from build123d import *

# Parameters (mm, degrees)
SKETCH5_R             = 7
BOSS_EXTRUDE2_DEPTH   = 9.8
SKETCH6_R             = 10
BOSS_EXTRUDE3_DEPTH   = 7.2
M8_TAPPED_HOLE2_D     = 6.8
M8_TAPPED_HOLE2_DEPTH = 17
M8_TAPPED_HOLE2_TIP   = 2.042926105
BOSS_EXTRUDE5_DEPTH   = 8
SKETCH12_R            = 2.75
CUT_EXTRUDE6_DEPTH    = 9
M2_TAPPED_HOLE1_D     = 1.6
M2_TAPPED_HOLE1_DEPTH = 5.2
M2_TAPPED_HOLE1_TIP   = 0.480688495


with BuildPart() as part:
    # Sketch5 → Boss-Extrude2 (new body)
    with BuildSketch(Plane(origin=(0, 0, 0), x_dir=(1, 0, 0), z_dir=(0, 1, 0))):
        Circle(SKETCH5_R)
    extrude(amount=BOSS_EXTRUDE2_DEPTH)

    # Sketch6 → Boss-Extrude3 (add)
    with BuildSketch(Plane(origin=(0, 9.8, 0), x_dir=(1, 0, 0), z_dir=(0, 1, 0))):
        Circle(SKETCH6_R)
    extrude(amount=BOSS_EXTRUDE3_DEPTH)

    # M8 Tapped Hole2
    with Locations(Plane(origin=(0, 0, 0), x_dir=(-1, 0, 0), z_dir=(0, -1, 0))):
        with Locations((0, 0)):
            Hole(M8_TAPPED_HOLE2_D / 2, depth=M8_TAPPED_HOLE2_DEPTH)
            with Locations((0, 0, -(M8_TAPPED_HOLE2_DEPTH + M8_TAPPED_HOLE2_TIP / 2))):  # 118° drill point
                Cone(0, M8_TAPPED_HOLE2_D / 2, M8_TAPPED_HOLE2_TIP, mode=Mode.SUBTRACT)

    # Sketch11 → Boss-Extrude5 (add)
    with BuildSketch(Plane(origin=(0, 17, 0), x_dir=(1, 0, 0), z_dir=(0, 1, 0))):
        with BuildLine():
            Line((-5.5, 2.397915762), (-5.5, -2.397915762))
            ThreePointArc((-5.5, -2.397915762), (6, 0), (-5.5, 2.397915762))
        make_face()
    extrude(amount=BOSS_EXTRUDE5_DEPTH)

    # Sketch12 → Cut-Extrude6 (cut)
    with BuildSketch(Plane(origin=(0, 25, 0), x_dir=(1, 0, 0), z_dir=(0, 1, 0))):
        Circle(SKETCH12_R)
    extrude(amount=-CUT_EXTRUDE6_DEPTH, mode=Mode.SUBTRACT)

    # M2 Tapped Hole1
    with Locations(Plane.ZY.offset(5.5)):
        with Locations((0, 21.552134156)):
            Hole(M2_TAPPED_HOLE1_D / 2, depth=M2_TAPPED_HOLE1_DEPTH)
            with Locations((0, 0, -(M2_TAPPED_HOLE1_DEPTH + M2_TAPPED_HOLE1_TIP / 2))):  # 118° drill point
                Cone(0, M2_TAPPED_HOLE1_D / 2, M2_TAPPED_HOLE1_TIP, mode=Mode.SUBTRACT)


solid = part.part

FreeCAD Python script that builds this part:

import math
import FreeCAD as App
import Part
import Sketcher

V = App.Vector
Q = App.Units.Quantity

doc = App.newDocument("Part")
body = doc.addObject("PartDesign::Body", "Body")

sketch1 = doc.addObject("Sketcher::SketchObject", "Sketch")
body.addObject(sketch1)
sketch1.AttachmentSupport = (doc.XZ_Plane, [""])
sketch1.MapMode = "FlatFace"
sketch1.addGeometry(Part.Circle(V(0, 0, 0), V(0, 0, 1), 7), False)
sketch1.addConstraint(Sketcher.Constraint("Coincident", 0, 3, -1, 1))
sketch1.addConstraint(Sketcher.Constraint("Diameter", 0, Q("14 mm")))
pad1 = doc.addObject("PartDesign::Pad", "Pad")
body.addObject(pad1)
pad1.Profile = sketch1
pad1.Length = 9.8
pad1.Reversed = True

sketch2 = doc.addObject("Sketcher::SketchObject", "Sketch001")
body.addObject(sketch2)
sketch2.AttachmentSupport = (doc.XZ_Plane, [""])
sketch2.MapMode = "FlatFace"
sketch2.AttachmentOffset = App.Placement(V(0, 0, -9.8), App.Rotation())
sketch2.addGeometry(Part.Circle(V(0, 0, 0), V(0, 0, 1), 10), False)
sketch2.addConstraint(Sketcher.Constraint("Coincident", 0, 3, -1, 1))
sketch2.addConstraint(Sketcher.Constraint("Diameter", 0, Q("20 mm")))
pad2 = doc.addObject("PartDesign::Pad", "Pad001")
body.addObject(pad2)
pad2.Profile = sketch2
pad2.Length = 7.2
pad2.Reversed = True

sketch3 = doc.addObject("Sketcher::SketchObject", "Sketch002")
body.addObject(sketch3)
sketch3.AttachmentSupport = (doc.XZ_Plane, [""])
sketch3.MapMode = "FlatFace"
sketch3.addGeometry(Part.Circle(V(0, 0, 0), V(0, 0, 1), 3.4), False)
sketch3.addConstraint(Sketcher.Constraint("Coincident", 0, 3, -1, 1))
sketch3.addConstraint(Sketcher.Constraint("Diameter", 0, Q("6.8 mm")))
doc.recompute()
hole = doc.addObject("PartDesign::Hole", "Hole")
body.addObject(hole)
hole.Profile = sketch3
hole.ThreadType = "None"
hole.Diameter = 6.8
hole.DepthType = "Dimension"
hole.Depth = 17
hole.DrillPoint = "Angled"
hole.DrillPointAngle = 118

sketch4 = doc.addObject("Sketcher::SketchObject", "Sketch003")
body.addObject(sketch4)
sketch4.AttachmentSupport = (doc.XZ_Plane, [""])
sketch4.MapMode = "FlatFace"
sketch4.AttachmentOffset = App.Placement(V(0, 0, -17), App.Rotation())
sketch4.addGeometry(Part.LineSegment(V(-5.5, -2.4, 0), V(-5.5, 2.4, 0)), False)
sketch4.addGeometry(Part.ArcOfCircle(Part.Circle(V(0, 0, 0), V(0, 0, 1), 6), math.radians(-156), math.radians(156)), False)
sketch4.addConstraint(Sketcher.Constraint("Coincident", 0, 1, 1, 1))
sketch4.addConstraint(Sketcher.Constraint("Coincident", 1, 2, 0, 2))
sketch4.addConstraint(Sketcher.Constraint("Vertical", 0))
sketch4.addConstraint(Sketcher.Constraint("Coincident", 1, 3, -1, 1))
sketch4.addConstraint(Sketcher.Constraint("Radius", 1, Q("6 mm")))
sketch4.addConstraint(Sketcher.Constraint("DistanceX", 0, 1, -1, 1, Q("5.5 mm")))
pad3 = doc.addObject("PartDesign::Pad", "Pad002")
body.addObject(pad3)
pad3.Profile = sketch4
pad3.Length = 8
pad3.Reversed = True

sketch5 = doc.addObject("Sketcher::SketchObject", "Sketch004")
body.addObject(sketch5)
sketch5.AttachmentSupport = (doc.XZ_Plane, [""])
sketch5.MapMode = "FlatFace"
sketch5.AttachmentOffset = App.Placement(V(0, 0, -25), App.Rotation())
sketch5.addGeometry(Part.Circle(V(0, 0, 0), V(0, 0, 1), 2.8), False)
sketch5.addConstraint(Sketcher.Constraint("Coincident", 0, 3, -1, 1))
sketch5.addConstraint(Sketcher.Constraint("Diameter", 0, Q("5.5 mm")))
pocket1 = doc.addObject("PartDesign::Pocket", "Pocket")
body.addObject(pocket1)
pocket1.Profile = sketch5
pocket1.Length = 9
pocket1.Reversed = True

sketch6 = doc.addObject("Sketcher::SketchObject", "Sketch005")
body.addObject(sketch6)
sketch6.AttachmentSupport = (doc.YZ_Plane, [""])
sketch6.MapMode = "FlatFace"
sketch6.AttachmentOffset = App.Placement(V(0, 0, -5.5), App.Rotation())
sketch6.addGeometry(Part.Circle(V(21.6, 0, 0), V(0, 0, 1), 0.8), False)
sketch6.addConstraint(Sketcher.Constraint("PointOnObject", 0, 3, -1))
sketch6.addConstraint(Sketcher.Constraint("Diameter", 0, Q("1.6 mm")))
sketch6.addConstraint(Sketcher.Constraint("DistanceX", -1, 1, 0, 3, Q("21.552134 mm")))
doc.recompute()
hole2 = doc.addObject("PartDesign::Hole", "Hole001")
body.addObject(hole2)
hole2.Profile = sketch6
hole2.ThreadType = "None"
hole2.Diameter = 1.6
hole2.DepthType = "Dimension"
hole2.Depth = 5.2
hole2.DrillPoint = "Angled"
hole2.DrillPointAngle = 118
hole2.Reversed = True

doc.recompute()
